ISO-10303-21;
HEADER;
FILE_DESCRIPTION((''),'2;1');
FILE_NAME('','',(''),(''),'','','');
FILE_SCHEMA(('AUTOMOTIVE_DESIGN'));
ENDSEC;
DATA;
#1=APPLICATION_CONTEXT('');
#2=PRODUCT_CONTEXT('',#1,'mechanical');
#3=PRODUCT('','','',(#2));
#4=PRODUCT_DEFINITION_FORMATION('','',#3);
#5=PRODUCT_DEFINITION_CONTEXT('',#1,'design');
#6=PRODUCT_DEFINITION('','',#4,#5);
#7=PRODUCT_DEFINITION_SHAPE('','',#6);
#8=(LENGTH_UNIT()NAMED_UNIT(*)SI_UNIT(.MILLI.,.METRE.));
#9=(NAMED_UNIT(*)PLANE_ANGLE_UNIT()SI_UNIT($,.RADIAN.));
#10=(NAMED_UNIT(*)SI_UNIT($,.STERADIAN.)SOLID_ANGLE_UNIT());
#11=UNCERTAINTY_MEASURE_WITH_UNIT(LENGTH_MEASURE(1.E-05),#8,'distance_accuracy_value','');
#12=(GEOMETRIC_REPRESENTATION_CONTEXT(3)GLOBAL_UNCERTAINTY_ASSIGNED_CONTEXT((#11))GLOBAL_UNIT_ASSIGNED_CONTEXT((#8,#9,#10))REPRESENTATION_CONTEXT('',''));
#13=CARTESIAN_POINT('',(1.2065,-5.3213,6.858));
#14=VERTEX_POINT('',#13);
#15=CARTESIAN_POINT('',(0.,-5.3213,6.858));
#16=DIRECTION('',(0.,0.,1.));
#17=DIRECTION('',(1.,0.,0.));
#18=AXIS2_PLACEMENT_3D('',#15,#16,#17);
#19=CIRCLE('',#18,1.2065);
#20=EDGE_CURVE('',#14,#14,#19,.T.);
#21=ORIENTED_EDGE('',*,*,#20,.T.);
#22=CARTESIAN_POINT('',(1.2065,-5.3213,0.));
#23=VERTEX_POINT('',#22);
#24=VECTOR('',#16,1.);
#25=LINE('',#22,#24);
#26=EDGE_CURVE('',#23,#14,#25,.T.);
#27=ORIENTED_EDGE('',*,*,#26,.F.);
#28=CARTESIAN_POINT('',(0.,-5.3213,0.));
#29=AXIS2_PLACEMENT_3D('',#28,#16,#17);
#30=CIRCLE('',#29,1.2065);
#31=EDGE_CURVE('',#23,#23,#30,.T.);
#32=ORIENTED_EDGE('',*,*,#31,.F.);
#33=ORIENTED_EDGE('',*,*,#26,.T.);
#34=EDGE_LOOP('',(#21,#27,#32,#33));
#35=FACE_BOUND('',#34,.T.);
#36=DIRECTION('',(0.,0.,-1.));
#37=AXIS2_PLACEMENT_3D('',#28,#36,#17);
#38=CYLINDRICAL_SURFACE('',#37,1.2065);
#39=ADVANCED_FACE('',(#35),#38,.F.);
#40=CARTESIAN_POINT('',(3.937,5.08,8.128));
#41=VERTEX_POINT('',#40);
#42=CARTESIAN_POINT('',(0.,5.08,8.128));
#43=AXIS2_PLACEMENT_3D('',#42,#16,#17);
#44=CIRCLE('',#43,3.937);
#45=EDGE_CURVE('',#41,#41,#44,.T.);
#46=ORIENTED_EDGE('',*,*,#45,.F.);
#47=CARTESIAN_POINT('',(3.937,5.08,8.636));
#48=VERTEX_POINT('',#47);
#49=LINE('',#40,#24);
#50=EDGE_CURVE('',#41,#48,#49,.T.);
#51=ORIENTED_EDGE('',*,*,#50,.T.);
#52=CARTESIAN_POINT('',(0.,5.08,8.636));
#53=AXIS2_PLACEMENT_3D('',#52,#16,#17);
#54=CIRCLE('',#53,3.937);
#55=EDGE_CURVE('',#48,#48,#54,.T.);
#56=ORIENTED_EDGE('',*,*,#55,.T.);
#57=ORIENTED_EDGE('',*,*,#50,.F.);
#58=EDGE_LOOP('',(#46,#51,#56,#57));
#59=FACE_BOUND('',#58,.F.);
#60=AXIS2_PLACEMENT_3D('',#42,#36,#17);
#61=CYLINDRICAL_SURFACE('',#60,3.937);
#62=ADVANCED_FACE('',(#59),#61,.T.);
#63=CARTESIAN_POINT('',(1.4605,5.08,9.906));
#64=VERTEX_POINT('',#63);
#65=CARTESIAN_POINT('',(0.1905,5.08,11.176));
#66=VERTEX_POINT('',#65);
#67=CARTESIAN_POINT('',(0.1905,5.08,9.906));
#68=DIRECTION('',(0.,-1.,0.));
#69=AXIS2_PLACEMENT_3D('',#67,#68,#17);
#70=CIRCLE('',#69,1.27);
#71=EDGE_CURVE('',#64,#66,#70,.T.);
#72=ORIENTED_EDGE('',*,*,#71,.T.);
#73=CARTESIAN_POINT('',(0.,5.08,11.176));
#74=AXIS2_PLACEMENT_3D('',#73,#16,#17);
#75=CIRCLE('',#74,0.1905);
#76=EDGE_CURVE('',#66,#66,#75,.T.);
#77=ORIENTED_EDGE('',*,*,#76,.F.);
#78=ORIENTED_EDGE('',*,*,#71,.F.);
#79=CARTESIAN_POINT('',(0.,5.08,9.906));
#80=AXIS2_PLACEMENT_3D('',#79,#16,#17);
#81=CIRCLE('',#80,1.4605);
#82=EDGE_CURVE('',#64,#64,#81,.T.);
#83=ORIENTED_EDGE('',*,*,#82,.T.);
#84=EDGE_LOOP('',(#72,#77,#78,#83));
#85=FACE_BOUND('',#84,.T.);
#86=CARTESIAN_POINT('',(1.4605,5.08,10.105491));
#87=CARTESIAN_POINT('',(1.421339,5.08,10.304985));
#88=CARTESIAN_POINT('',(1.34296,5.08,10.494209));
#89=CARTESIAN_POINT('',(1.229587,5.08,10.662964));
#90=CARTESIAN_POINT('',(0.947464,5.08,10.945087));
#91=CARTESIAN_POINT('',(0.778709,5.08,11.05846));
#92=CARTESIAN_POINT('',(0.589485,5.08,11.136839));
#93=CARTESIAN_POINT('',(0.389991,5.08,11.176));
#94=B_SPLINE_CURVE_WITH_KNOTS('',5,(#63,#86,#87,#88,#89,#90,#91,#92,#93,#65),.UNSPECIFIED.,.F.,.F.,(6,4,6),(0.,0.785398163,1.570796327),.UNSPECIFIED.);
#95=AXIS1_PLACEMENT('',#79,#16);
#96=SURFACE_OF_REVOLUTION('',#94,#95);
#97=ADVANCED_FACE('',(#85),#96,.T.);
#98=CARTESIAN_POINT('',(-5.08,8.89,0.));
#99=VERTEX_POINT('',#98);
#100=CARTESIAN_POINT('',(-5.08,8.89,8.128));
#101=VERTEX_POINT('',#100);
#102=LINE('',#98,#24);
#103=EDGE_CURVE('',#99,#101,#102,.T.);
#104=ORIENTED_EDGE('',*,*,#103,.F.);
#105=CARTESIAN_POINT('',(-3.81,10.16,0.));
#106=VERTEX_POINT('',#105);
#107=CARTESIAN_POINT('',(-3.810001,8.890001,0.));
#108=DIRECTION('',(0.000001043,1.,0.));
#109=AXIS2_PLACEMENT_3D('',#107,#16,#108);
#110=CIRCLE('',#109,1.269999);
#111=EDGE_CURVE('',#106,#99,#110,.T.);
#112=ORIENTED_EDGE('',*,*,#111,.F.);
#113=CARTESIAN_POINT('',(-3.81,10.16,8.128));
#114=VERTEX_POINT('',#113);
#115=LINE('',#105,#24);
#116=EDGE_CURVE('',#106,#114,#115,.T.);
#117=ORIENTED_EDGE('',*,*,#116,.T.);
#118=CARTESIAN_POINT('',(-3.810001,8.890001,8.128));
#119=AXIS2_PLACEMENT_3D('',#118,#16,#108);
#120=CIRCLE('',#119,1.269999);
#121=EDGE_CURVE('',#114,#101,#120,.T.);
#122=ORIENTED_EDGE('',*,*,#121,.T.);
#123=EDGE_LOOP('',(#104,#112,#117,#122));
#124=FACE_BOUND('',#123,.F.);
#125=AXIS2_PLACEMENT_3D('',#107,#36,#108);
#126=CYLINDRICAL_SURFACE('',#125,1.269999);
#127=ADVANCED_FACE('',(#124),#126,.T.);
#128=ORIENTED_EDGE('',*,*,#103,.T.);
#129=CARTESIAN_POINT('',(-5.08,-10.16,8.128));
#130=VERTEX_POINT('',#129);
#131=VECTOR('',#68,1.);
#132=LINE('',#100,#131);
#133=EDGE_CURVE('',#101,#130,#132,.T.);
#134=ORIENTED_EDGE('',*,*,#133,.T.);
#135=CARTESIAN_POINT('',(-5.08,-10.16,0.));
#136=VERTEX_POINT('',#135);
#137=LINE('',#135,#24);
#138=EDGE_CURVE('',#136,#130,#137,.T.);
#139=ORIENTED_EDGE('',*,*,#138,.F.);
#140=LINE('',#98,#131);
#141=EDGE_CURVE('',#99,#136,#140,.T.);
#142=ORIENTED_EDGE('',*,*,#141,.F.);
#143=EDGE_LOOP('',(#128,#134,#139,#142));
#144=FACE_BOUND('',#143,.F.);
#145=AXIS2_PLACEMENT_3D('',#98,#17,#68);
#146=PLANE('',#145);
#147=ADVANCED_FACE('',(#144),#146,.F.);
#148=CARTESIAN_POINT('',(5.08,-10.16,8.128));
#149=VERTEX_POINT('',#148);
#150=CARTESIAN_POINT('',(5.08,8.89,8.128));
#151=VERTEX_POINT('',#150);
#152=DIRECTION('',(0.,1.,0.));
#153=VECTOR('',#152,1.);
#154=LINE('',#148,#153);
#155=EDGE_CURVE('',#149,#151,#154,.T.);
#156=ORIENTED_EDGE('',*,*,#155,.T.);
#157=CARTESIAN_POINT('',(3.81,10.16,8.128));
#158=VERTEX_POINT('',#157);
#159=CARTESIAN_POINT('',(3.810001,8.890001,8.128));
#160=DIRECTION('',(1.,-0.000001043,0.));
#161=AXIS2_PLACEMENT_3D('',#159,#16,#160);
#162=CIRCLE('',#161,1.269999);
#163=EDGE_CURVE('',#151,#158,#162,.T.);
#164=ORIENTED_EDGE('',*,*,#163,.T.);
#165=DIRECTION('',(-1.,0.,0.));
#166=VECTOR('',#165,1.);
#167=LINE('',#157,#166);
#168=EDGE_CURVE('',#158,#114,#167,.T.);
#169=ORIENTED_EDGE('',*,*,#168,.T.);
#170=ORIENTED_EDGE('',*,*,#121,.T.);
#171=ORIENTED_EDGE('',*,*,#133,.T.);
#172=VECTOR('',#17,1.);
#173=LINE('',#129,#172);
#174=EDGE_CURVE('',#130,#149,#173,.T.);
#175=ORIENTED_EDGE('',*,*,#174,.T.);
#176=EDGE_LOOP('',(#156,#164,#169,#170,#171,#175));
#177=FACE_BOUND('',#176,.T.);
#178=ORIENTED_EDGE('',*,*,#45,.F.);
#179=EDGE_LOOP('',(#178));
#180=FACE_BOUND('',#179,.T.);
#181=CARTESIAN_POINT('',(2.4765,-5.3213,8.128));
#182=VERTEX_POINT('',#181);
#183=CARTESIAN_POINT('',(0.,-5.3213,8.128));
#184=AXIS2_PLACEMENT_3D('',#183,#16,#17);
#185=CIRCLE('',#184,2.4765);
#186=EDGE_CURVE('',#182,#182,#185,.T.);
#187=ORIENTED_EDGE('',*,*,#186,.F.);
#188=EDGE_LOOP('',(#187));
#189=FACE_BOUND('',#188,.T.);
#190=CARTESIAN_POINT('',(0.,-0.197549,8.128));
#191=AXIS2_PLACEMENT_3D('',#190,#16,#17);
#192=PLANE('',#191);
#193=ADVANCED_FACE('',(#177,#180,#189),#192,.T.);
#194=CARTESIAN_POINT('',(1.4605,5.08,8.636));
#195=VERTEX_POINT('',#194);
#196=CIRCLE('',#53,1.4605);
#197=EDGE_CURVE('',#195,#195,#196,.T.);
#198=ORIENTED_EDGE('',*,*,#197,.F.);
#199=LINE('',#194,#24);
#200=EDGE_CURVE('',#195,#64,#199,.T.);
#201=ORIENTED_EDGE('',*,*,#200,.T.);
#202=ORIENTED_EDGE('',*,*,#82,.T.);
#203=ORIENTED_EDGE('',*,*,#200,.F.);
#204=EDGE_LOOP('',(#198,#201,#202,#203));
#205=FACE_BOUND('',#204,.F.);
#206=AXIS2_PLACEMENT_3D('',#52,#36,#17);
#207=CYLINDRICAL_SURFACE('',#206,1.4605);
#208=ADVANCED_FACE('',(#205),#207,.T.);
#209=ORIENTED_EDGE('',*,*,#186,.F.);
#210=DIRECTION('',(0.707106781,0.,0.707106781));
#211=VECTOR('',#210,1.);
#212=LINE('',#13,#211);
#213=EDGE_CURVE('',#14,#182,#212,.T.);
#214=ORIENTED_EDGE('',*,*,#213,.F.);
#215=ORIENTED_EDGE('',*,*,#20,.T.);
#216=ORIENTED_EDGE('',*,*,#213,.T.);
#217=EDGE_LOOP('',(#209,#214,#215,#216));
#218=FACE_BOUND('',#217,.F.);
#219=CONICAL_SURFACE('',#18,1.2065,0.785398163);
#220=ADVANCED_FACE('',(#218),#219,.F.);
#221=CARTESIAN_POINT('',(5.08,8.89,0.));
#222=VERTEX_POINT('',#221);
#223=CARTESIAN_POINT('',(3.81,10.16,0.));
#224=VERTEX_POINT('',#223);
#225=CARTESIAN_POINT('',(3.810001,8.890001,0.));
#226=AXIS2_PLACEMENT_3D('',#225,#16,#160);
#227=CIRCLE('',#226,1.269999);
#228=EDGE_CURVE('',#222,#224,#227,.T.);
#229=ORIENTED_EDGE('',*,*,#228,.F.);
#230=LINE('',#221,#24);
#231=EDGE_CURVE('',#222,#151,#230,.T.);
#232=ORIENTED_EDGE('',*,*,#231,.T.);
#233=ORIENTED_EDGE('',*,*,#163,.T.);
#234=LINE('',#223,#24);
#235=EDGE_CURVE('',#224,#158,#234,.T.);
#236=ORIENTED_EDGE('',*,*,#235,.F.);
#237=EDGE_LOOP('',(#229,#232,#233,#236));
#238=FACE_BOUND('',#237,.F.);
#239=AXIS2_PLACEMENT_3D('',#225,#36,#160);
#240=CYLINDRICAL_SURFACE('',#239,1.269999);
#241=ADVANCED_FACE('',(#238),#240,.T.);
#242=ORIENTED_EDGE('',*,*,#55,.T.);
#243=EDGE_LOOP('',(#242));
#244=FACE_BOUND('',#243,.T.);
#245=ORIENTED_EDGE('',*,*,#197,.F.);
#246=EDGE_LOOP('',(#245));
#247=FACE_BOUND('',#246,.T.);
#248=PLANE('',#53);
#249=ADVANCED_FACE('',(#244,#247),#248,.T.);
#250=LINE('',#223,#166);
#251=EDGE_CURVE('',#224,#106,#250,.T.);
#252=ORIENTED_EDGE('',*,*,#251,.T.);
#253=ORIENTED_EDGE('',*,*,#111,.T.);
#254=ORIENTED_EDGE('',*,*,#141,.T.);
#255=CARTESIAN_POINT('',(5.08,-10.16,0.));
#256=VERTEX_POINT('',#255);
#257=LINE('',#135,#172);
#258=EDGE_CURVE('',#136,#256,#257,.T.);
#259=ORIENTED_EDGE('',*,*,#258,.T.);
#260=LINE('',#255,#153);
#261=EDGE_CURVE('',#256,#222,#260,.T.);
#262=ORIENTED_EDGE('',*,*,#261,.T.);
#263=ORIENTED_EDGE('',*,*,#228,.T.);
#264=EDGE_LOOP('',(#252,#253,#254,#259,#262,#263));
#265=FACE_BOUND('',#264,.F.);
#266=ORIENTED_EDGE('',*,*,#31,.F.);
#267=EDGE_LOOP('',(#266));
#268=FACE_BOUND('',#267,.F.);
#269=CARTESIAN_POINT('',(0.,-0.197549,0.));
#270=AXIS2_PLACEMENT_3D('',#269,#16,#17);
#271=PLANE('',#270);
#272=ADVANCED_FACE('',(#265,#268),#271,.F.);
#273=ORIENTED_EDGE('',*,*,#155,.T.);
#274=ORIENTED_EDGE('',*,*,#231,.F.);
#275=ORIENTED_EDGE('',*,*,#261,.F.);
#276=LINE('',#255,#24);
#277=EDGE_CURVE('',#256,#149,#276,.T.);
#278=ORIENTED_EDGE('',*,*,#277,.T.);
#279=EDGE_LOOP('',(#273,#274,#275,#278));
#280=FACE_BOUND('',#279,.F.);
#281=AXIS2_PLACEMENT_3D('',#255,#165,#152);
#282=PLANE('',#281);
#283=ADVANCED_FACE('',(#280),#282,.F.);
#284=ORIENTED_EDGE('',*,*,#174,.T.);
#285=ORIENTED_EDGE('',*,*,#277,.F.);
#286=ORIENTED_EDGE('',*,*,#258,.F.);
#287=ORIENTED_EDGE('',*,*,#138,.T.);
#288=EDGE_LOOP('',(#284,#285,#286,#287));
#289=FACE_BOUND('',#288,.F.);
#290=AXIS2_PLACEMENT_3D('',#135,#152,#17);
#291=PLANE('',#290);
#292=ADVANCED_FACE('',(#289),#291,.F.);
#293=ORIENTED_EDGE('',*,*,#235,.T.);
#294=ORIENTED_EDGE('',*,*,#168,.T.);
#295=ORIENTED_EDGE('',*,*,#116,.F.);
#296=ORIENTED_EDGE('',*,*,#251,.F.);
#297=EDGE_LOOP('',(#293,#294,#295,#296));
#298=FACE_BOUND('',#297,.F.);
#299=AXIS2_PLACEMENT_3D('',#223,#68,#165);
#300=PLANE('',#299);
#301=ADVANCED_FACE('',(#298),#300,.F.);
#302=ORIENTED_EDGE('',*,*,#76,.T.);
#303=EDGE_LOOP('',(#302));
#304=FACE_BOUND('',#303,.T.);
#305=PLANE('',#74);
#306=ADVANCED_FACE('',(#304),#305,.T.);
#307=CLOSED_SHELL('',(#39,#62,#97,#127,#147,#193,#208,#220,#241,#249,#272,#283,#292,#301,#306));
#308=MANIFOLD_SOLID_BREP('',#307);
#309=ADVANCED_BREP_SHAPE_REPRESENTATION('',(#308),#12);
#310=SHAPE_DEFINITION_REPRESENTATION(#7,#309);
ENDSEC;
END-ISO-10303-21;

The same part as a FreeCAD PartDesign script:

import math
import FreeCAD as App
import Part
import Sketcher

V = App.Vector
Q = App.Units.Quantity


def edges_at(feature, points):
    """Names of the edges that pass closest to the given points."""
    edges = feature.Shape.Edges
    near = lambda p: min(range(len(edges)), key=lambda i: edges[i].distToShape(Part.Vertex(*p))[0])
    return sorted({f"Edge{near(p) + 1}" for p in points})

doc = App.newDocument("Part")
body = doc.addObject("PartDesign::Body", "Body")

sketch1 = doc.addObject("Sketcher::SketchObject", "Sketch")
body.addObject(sketch1)
sketch1.AttachmentSupport = (doc.XY_Plane, [""])
sketch1.MapMode = "FlatFace"
sketch1.addGeometry(Part.LineSegment(V(-5.1, -10.2, 0), V(5.1, -10.2, 0)), False)
sketch1.addGeometry(Part.LineSegment(V(5.1, -10.2, 0), V(5.1, 8.9, 0)), False)
sketch1.addGeometry(Part.ArcOfCircle(Part.Circle(V(3.8, 8.9, 0), V(0, 0, 1), 1.3), math.radians(0), math.radians(90)), False)
sketch1.addGeometry(Part.LineSegment(V(3.8, 10.2, 0), V(-3.8, 10.2, 0)), False)
sketch1.addGeometry(Part.ArcOfCircle(Part.Circle(V(-3.8, 8.9, 0), V(0, 0, 1), 1.3), math.radians(90), math.radians(180)), False)
sketch1.addGeometry(Part.LineSegment(V(-5.1, 8.9, 0), V(-5.1, -10.2, 0)), False)
sketch1.addGeometry(Part.Circle(V(0, -5.3, 0), V(0, 0, 1), 1.2), False)
sketch1.addConstraint(Sketcher.Constraint("Coincident", 0, 2, 1, 1))
sketch1.addConstraint(Sketcher.Constraint("Tangent", 1, 2, 2, 1))
sketch1.addConstraint(Sketcher.Constraint("Tangent", 2, 2, 3, 1))
sketch1.addConstraint(Sketcher.Constraint("Tangent", 3, 2, 4, 1))
sketch1.addConstraint(Sketcher.Constraint("Tangent", 4, 2, 5, 1))
sketch1.addConstraint(Sketcher.Constraint("Coincident", 5, 2, 0, 1))
sketch1.addConstraint(Sketcher.Constraint("Horizontal", 0))
sketch1.addConstraint(Sketcher.Constraint("Vertical", 1))
sketch1.addConstraint(Sketcher.Constraint("Horizontal", 3))
sketch1.addConstraint(Sketcher.Constraint("Vertical", 5))
sketch1.addConstraint(Sketcher.Constraint("Equal", 2, 4))
sketch1.addConstraint(Sketcher.Constraint("PointOnObject", 6, 3, -2))
sketch1.addConstraint(Sketcher.Constraint("Radius", 2, Q("0.0499999 in")))
sketch1.addConstraint(Sketcher.Constraint("Diameter", 6, Q("0.095 in")))
sketch1.addConstraint(Sketcher.Constraint("DistanceX", 0, 1, 0, 2, Q("0.4 in")))
sketch1.addConstraint(Sketcher.Constraint("DistanceY", 1, 1, 1, 2, Q("0.75 in")))
sketch1.addConstraint(Sketcher.Constraint("DistanceX", -1, 1, 0, 2, Q("0.2 in")))
sketch1.addConstraint(Sketcher.Constraint("DistanceY", 0, 2, -1, 1, Q("0.4 in")))
sketch1.addConstraint(Sketcher.Constraint("DistanceY", 6, 3, -1, 1, Q("0.2095 in")))
pad1 = doc.addObject("PartDesign::Pad", "Pad")
body.addObject(pad1)
pad1.Profile = sketch1
pad1.Length = Q("0.32 in")
doc.recompute()

chamfer = doc.addObject("PartDesign::Chamfer", "Chamfer")
body.addObject(chamfer)
chamfer.Base = (pad1, edges_at(pad1, [(-1.206, -5.321, 8.128)]))
chamfer.Size = Q("0.05 in")

sketch2 = doc.addObject("Sketcher::SketchObject", "Sketch001")
body.addObject(sketch2)
sketch2.AttachmentSupport = (doc.XY_Plane, [""])
sketch2.MapMode = "FlatFace"
sketch2.AttachmentOffset = App.Placement(V(0, 0, 0.32 * 25.4), App.Rotation())
sketch2.addGeometry(Part.Circle(V(0, 5.1, 0), V(0, 0, 1), 3.9), False)
sketch2.addConstraint(Sketcher.Constraint("PointOnObject", 0, 3, -2))
sketch2.addConstraint(Sketcher.Constraint("Diameter", 0, Q("0.31 in")))
sketch2.addConstraint(Sketcher.Constraint("DistanceY", -1, 1, 0, 3, Q("0.2 in")))
pad2 = doc.addObject("PartDesign::Pad", "Pad001")
body.addObject(pad2)
pad2.Profile = sketch2
pad2.Length = Q("0.02 in")

sketch3 = doc.addObject("Sketcher::SketchObject", "Sketch002")
body.addObject(sketch3)
sketch3.AttachmentSupport = (doc.XY_Plane, [""])
sketch3.MapMode = "FlatFace"
sketch3.AttachmentOffset = App.Placement(V(0, 0, 0.34 * 25.4), App.Rotation())
sketch3.addGeometry(Part.Circle(V(0, 5.1, 0), V(0, 0, 1), 1.5), False)
sketch3.addConstraint(Sketcher.Constraint("PointOnObject", 0, 3, -2))
sketch3.addConstraint(Sketcher.Constraint("Diameter", 0, Q("0.115 in")))
sketch3.addConstraint(Sketcher.Constraint("DistanceY", -1, 1, 0, 3, Q("0.2 in")))
pad3 = doc.addObject("PartDesign::Pad", "Pad002")
body.addObject(pad3)
pad3.Profile = sketch3
pad3.Length = Q("0.1 in")
doc.recompute()

fillet = doc.addObject("PartDesign::Fillet", "Fillet")
body.addObject(fillet)
fillet.Base = (pad3, edges_at(pad3, [(-1.46, 5.08, 11.176)]))
fillet.Radius = Q("0.05 in")

doc.recompute()
